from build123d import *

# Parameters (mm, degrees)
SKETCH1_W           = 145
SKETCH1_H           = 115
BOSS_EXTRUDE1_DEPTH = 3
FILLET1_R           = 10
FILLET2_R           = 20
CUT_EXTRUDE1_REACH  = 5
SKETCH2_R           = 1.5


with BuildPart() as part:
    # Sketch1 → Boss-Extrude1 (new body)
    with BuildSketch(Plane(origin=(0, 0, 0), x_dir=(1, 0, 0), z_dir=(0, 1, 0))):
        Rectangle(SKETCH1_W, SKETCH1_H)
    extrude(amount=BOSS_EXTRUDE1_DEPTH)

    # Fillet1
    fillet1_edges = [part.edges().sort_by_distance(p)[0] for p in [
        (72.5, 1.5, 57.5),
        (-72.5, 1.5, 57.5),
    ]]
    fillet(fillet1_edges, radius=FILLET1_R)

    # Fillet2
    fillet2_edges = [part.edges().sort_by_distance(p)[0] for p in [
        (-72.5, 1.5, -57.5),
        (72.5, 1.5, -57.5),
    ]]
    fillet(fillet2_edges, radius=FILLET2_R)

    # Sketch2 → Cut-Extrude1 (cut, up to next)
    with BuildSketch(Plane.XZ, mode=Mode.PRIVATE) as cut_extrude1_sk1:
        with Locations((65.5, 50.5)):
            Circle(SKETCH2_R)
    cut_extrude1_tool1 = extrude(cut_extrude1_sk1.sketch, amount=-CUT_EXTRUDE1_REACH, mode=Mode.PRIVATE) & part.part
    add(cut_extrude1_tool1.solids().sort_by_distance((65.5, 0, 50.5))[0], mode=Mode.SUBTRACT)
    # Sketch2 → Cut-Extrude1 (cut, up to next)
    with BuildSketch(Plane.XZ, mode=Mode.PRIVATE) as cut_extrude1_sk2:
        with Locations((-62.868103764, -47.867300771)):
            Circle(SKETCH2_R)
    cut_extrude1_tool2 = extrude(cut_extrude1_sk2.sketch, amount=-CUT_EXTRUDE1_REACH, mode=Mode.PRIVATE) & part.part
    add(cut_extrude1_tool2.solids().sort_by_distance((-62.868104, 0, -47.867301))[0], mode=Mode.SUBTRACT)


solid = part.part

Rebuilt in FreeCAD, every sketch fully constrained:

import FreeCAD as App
import Part
import Sketcher

V = App.Vector


def edges_at(feature, points):
    """Names of the edges that pass closest to the given points."""
    edges = feature.Shape.Edges
    near = lambda p: min(range(len(edges)), key=lambda i: edges[i].distToShape(Part.Vertex(*p))[0])
    return sorted({f"Edge{near(p) + 1}" for p in points})

doc = App.newDocument("Part")
body = doc.addObject("PartDesign::Body", "Body")

# Sketch on XZ plane
sketch1 = doc.addObject("Sketcher::SketchObject", "Sketch")
body.addObject(sketch1)
sketch1.AttachmentSupport = (doc.XZ_Plane, [""])
sketch1.MapMode = "FlatFace"
sketch1.addGeometry([
    Part.LineSegment(V(-72.5, -57.5, 0), V(-72.5, 57.5, 0)),
    Part.LineSegment(V(-72.5, 57.5, 0), V(72.5, 57.5, 0)),
    Part.LineSegment(V(72.5, 57.5, 0), V(72.5, -57.5, 0)),
    Part.LineSegment(V(72.5, -57.5, 0), V(-72.5, -57.5, 0)),
], False)
sketch1.addConstraint([
    Sketcher.Constraint("Coincident", 0, 2, 1, 1),
    Sketcher.Constraint("Coincident", 1, 2, 2, 1),
    Sketcher.Constraint("Coincident", 2, 2, 3, 1),
    Sketcher.Constraint("Coincident", 3, 2, 0, 1),
    Sketcher.Constraint("Vertical", 0),
    Sketcher.Constraint("Horizontal", 1),
    Sketcher.Constraint("Vertical", 2),
    Sketcher.Constraint("Horizontal", 3),
    Sketcher.Constraint("Symmetric", 0, 2, 2, 2, -1, 1),
    Sketcher.Constraint("DistanceX", 1, 1, 1, 2, 145.0),
    Sketcher.Constraint("DistanceY", 0, 1, 0, 2, 115.0),
])
pad1 = doc.addObject("PartDesign::Pad", "Pad")
body.addObject(pad1)
pad1.Profile = sketch1
pad1.Length = 3
pad1.Reversed = True
doc.recompute()

fillet = doc.addObject("PartDesign::Fillet", "Fillet")
body.addObject(fillet)
fillet.Base = (pad1, edges_at(pad1, [(72.5, 1.5, 57.5), (-72.5, 1.5, 57.5)]))
fillet.Radius = 10
doc.recompute()

fillet2 = doc.addObject("PartDesign::Fillet", "Fillet001")
body.addObject(fillet2)
fillet2.Base = (fillet, edges_at(fillet, [(-72.5, 1.5, -57.5), (72.5, 1.5, -57.5)]))
fillet2.Radius = 20

# Sketch on XZ plane
sketch2 = doc.addObject("Sketcher::SketchObject", "Sketch001")
body.addObject(sketch2)
sketch2.AttachmentSupport = (doc.XZ_Plane, [""])
sketch2.MapMode = "FlatFace"
sketch2.addGeometry(Part.Circle(V(65.5, 50.5, 0), V(0, 0, 1), 1.5), False)
sketch2.addConstraint([
    Sketcher.Constraint("Diameter", 0, 3.0),
    Sketcher.Constraint("DistanceX", -1, 1, 0, 3, 65.5),
    Sketcher.Constraint("DistanceY", -1, 1, 0, 3, 50.5),
])
pocket1 = doc.addObject("PartDesign::Pocket", "Pocket")
body.addObject(pocket1)
pocket1.Profile = sketch2
pocket1.Type = "UpToFirst"

# Sketch on XZ plane
sketch3 = doc.addObject("Sketcher::SketchObject", "Sketch002")
body.addObject(sketch3)
sketch3.AttachmentSupport = (doc.XZ_Plane, [""])
sketch3.MapMode = "FlatFace"
sketch3.addGeometry(Part.Circle(V(-62.868104, -47.867301, 0), V(0, 0, 1), 1.5), False)
sketch3.addConstraint([
    Sketcher.Constraint("Diameter", 0, 3.0),
    Sketcher.Constraint("DistanceY", 0, 3, -1, 1, 47.867301),
    Sketcher.Constraint("DistanceX", 0, 3, -1, 1, 62.868104),
])
pocket2 = doc.addObject("PartDesign::Pocket", "Pocket001")
body.addObject(pocket2)
pocket2.Profile = sketch3
pocket2.Type = "UpToFirst"

doc.recompute()
